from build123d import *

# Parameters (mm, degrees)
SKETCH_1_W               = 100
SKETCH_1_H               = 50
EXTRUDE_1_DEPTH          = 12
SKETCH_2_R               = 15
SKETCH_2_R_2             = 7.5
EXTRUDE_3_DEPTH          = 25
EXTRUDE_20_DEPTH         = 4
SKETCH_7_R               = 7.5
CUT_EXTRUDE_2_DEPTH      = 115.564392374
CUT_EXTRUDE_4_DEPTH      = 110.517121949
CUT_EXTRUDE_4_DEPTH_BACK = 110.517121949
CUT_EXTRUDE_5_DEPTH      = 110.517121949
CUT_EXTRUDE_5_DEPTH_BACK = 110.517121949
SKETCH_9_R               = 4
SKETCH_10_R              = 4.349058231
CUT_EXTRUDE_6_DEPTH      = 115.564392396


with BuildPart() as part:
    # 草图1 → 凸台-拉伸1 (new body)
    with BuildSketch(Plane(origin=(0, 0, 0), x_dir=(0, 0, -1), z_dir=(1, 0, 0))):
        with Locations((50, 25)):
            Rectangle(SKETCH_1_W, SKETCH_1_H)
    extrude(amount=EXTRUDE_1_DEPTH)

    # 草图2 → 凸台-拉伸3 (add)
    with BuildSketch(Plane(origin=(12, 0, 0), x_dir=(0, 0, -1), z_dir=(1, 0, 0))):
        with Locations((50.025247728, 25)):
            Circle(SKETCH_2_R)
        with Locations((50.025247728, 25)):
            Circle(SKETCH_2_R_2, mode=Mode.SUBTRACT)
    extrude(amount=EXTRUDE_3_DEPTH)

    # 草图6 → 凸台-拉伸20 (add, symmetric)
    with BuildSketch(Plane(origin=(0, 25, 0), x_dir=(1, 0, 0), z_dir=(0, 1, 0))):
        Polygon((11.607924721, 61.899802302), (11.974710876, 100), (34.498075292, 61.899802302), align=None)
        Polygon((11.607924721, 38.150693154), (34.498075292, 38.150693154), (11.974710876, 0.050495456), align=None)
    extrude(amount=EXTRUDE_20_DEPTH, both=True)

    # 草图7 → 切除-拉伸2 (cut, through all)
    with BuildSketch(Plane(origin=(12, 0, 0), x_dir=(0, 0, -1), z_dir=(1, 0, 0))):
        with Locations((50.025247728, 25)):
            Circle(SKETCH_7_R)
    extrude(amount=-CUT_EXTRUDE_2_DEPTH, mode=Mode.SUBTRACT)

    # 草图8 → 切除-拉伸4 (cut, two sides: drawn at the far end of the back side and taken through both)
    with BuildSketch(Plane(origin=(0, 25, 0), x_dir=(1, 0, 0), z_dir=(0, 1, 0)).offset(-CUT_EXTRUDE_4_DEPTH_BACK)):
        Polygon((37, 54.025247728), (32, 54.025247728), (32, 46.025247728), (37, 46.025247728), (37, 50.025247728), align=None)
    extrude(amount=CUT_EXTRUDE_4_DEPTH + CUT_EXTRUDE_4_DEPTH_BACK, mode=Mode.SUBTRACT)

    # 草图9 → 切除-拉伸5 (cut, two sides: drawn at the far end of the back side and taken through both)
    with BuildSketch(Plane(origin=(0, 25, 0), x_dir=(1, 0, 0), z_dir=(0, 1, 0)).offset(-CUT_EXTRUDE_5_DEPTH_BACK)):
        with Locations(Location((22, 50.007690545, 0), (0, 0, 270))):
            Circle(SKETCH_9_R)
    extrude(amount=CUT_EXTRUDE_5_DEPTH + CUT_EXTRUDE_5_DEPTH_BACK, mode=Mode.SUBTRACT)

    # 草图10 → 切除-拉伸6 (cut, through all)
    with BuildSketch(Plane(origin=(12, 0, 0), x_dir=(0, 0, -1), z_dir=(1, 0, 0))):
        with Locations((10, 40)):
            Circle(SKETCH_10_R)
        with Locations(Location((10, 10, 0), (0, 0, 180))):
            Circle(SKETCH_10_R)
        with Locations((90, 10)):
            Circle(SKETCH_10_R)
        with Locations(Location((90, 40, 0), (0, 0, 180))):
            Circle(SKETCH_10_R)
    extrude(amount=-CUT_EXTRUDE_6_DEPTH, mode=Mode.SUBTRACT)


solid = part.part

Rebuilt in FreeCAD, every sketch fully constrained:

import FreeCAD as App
import Part
import Sketcher


def add_polygon(sketch, points):
    """Adds a closed chain of lines whose ends are joined by coincident constraints."""
    first, n = sketch.GeometryCount, len(points)
    for a, b in zip(points, points[1:] + points[:1]):
        sketch.addGeometry(Part.LineSegment(App.Vector(*a, 0), App.Vector(*b, 0)), False)
    for i in range(n):
        sketch.addConstraint(Sketcher.Constraint("Coincident", first + i, 2, first + (i + 1) % n, 1))

doc = App.newDocument("Part")
body = doc.addObject("PartDesign::Body", "Body")

sketch1 = doc.addObject("Sketcher::SketchObject", "Sketch")
body.addObject(sketch1)
sketch1.AttachmentSupport = (doc.YZ_Plane, [""])
sketch1.MapMode = "FlatFace"
add_polygon(sketch1, [(50, 0), (0, 0), (0, -100), (50, -100)])
sketch1.addConstraint([
    Sketcher.Constraint("Horizontal", 0),
    Sketcher.Constraint("Vertical", 1),
    Sketcher.Constraint("Horizontal", 2),
    Sketcher.Constraint("Vertical", 3),
    Sketcher.Constraint("Coincident", 0, 2, -1, 1),
    Sketcher.Constraint("DistanceX", 0, 2, 0, 1, 50.0),
    Sketcher.Constraint("DistanceY", 1, 2, 1, 1, 100.0),
])
pad1 = doc.addObject("PartDesign::Pad", "Pad")
body.addObject(pad1)
pad1.Profile = sketch1
pad1.Length = 12

sketch2 = doc.addObject("Sketcher::SketchObject", "Sketch001")
body.addObject(sketch2)
sketch2.AttachmentSupport = (doc.YZ_Plane, [""])
sketch2.MapMode = "FlatFace"
sketch2.AttachmentOffset = App.Placement(App.Vector(0, 0, 12), App.Rotation())
sketch2.addGeometry([
    Part.Circle(App.Vector(25, -50, 0), App.Vector(0, 0, 1), 15),
    Part.Circle(App.Vector(25, -50, 0), App.Vector(0, 0, 1), 8),
], False)
sketch2.addConstraint([
    Sketcher.Constraint("Coincident", 1, 3, 0, 3),
    Sketcher.Constraint("Diameter", 0, 30.0),
    Sketcher.Constraint("Diameter", 1, 15.0),
    Sketcher.Constraint("DistanceX", -1, 1, 0, 3, 25.0),
    Sketcher.Constraint("DistanceY", 0, 3, -1, 1, 50.025248),
])
pad2 = doc.addObject("PartDesign::Pad", "Pad001")
body.addObject(pad2)
pad2.Profile = sketch2
pad2.Length = 25

sketch3 = doc.addObject("Sketcher::SketchObject", "Sketch002")
body.addObject(sketch3)
sketch3.AttachmentSupport = (doc.XZ_Plane, [""])
sketch3.MapMode = "FlatFace"
sketch3.AttachmentOffset = App.Placement(App.Vector(0, 0, -25), App.Rotation())
add_polygon(sketch3, [(12, -100), (12, -62), (34, -62)])
add_polygon(sketch3, [(34, -38), (12, -38), (12, 0)])
sketch3.addConstraint([
    Sketcher.Constraint("Horizontal", 1),
    Sketcher.Constraint("Horizontal", 3),
    Sketcher.Constraint("Vertical", 0, 2, 3, 2),
    Sketcher.Constraint("Vertical", 2, 2, 4, 2),
    Sketcher.Constraint("Vertical", 1, 2, 5, 2),
    Sketcher.Constraint("Equal", 0, 4),
    Sketcher.Constraint("DistanceY", 2, 2, -1, 1, 100.0),
    Sketcher.Constraint("DistanceX", 1, 1, 1, 2, 22.890151),
    Sketcher.Constraint("DistanceX", -1, 1, 2, 2, 11.974711),
    Sketcher.Constraint("DistanceY", 0, 2, 3, 2, 23.749109),
    Sketcher.Constraint("Distance", 0, 38.101963),
    Sketcher.Constraint("Distance", 2, 44.259767),
])
pad3 = doc.addObject("PartDesign::Pad", "Pad002")
body.addObject(pad3)
pad3.Profile = sketch3
pad3.Length = 8
pad3.Midplane = True

sketch4 = doc.addObject("Sketcher::SketchObject", "Sketch003")
body.addObject(sketch4)
sketch4.AttachmentSupport = (doc.YZ_Plane, [""])
sketch4.MapMode = "FlatFace"
sketch4.AttachmentOffset = App.Placement(App.Vector(0, 0, 12), App.Rotation())
sketch4.addGeometry(Part.Circle(App.Vector(25, -50, 0), App.Vector(0, 0, 1), 8), False)
sketch4.addConstraint([
    Sketcher.Constraint("Diameter", 0, 15.0),
    Sketcher.Constraint("DistanceX", -1, 1, 0, 3, 25.0),
    Sketcher.Constraint("DistanceY", 0, 3, -1, 1, 50.025248),
])
pocket1 = doc.addObject("PartDesign::Pocket", "Pocket")
body.addObject(pocket1)
pocket1.Profile = sketch4
pocket1.Type = "ThroughAll"

sketch5 = doc.addObject("Sketcher::SketchObject", "Sketch004")
body.addObject(sketch5)
sketch5.AttachmentSupport = (doc.XZ_Plane, [""])
sketch5.MapMode = "FlatFace"
sketch5.AttachmentOffset = App.Placement(App.Vector(0, 0, -25), App.Rotation())
add_polygon(sketch5, [(37, -54), (32, -54), (32, -46), (37, -46)])
sketch5.addConstraint([
    Sketcher.Constraint("Horizontal", 0),
    Sketcher.Constraint("Vertical", 1),
    Sketcher.Constraint("Horizontal", 2),
    Sketcher.Constraint("Vertical", 3),
    Sketcher.Constraint("DistanceX", 0, 2, 0, 1, 5.0),
    Sketcher.Constraint("DistanceY", 1, 1, 1, 2, 8.0),
    Sketcher.Constraint("DistanceX", -1, 1, 0, 2, 32.0),
    Sketcher.Constraint("DistanceY", 0, 2, -1, 1, 54.025248),
])
pocket2 = doc.addObject("PartDesign::Pocket", "Pocket001")
body.addObject(pocket2)
pocket2.Profile = sketch5
pocket2.Type = "ThroughAll"
pocket2.Midplane = True

sketch6 = doc.addObject("Sketcher::SketchObject", "Sketch005")
body.addObject(sketch6)
sketch6.AttachmentSupport = (doc.XZ_Plane, [""])
sketch6.MapMode = "FlatFace"
sketch6.AttachmentOffset = App.Placement(App.Vector(0, 0, -25), App.Rotation())
sketch6.addGeometry(Part.Circle(App.Vector(22, -50, 0), App.Vector(0, 0, 1), 4), False)
sketch6.addConstraint([
    Sketcher.Constraint("Diameter", 0, 8.0),
    Sketcher.Constraint("DistanceX", -1, 1, 0, 3, 22.0),
    Sketcher.Constraint("DistanceY", 0, 3, -1, 1, 50.007691),
])
pocket3 = doc.addObject("PartDesign::Pocket", "Pocket002")
body.addObject(pocket3)
pocket3.Profile = sketch6
pocket3.Type = "ThroughAll"
pocket3.Midplane = True

sketch7 = doc.addObject("Sketcher::SketchObject", "Sketch006")
body.addObject(sketch7)
sketch7.AttachmentSupport = (doc.YZ_Plane, [""])
sketch7.MapMode = "FlatFace"
sketch7.AttachmentOffset = App.Placement(App.Vector(0, 0, 12), App.Rotation())
sketch7.addGeometry([
    Part.Circle(App.Vector(40, -10, 0), App.Vector(0, 0, 1), 4.3),
    Part.Circle(App.Vector(10, -10, 0), App.Vector(0, 0, 1), 4.3),
    Part.Circle(App.Vector(10, -90, 0), App.Vector(0, 0, 1), 4.3),
    Part.Circle(App.Vector(40, -90, 0), App.Vector(0, 0, 1), 4.3),
], False)
sketch7.addConstraint([
    Sketcher.Constraint("Equal", 0, 1),
    Sketcher.Constraint("Equal", 1, 2),
    Sketcher.Constraint("Equal", 2, 3),
    Sketcher.Constraint("Horizontal", 0, 3, 1, 3),
    Sketcher.Constraint("Horizontal", 2, 3, 3, 3),
    Sketcher.Constraint("Vertical", 1, 3, 2, 3),
    Sketcher.Constraint("Vertical", 0, 3, 3, 3),
    Sketcher.Constraint("DistanceX", -1, 1, 0, 3, 40.0),
    Sketcher.Constraint("DistanceY", 0, 3, -1, 1, 10.0),
    Sketcher.Constraint("DistanceX", -1, 1, 1, 3, 10.0),
    Sketcher.Constraint("DistanceY", 2, 3, -1, 1, 90.0),
    Sketcher.Constraint("Diameter", 0, 8.698116),
])
pocket4 = doc.addObject("PartDesign::Pocket", "Pocket003")
body.addObject(pocket4)
pocket4.Profile = sketch7
pocket4.Type = "ThroughAll"

doc.recompute()
